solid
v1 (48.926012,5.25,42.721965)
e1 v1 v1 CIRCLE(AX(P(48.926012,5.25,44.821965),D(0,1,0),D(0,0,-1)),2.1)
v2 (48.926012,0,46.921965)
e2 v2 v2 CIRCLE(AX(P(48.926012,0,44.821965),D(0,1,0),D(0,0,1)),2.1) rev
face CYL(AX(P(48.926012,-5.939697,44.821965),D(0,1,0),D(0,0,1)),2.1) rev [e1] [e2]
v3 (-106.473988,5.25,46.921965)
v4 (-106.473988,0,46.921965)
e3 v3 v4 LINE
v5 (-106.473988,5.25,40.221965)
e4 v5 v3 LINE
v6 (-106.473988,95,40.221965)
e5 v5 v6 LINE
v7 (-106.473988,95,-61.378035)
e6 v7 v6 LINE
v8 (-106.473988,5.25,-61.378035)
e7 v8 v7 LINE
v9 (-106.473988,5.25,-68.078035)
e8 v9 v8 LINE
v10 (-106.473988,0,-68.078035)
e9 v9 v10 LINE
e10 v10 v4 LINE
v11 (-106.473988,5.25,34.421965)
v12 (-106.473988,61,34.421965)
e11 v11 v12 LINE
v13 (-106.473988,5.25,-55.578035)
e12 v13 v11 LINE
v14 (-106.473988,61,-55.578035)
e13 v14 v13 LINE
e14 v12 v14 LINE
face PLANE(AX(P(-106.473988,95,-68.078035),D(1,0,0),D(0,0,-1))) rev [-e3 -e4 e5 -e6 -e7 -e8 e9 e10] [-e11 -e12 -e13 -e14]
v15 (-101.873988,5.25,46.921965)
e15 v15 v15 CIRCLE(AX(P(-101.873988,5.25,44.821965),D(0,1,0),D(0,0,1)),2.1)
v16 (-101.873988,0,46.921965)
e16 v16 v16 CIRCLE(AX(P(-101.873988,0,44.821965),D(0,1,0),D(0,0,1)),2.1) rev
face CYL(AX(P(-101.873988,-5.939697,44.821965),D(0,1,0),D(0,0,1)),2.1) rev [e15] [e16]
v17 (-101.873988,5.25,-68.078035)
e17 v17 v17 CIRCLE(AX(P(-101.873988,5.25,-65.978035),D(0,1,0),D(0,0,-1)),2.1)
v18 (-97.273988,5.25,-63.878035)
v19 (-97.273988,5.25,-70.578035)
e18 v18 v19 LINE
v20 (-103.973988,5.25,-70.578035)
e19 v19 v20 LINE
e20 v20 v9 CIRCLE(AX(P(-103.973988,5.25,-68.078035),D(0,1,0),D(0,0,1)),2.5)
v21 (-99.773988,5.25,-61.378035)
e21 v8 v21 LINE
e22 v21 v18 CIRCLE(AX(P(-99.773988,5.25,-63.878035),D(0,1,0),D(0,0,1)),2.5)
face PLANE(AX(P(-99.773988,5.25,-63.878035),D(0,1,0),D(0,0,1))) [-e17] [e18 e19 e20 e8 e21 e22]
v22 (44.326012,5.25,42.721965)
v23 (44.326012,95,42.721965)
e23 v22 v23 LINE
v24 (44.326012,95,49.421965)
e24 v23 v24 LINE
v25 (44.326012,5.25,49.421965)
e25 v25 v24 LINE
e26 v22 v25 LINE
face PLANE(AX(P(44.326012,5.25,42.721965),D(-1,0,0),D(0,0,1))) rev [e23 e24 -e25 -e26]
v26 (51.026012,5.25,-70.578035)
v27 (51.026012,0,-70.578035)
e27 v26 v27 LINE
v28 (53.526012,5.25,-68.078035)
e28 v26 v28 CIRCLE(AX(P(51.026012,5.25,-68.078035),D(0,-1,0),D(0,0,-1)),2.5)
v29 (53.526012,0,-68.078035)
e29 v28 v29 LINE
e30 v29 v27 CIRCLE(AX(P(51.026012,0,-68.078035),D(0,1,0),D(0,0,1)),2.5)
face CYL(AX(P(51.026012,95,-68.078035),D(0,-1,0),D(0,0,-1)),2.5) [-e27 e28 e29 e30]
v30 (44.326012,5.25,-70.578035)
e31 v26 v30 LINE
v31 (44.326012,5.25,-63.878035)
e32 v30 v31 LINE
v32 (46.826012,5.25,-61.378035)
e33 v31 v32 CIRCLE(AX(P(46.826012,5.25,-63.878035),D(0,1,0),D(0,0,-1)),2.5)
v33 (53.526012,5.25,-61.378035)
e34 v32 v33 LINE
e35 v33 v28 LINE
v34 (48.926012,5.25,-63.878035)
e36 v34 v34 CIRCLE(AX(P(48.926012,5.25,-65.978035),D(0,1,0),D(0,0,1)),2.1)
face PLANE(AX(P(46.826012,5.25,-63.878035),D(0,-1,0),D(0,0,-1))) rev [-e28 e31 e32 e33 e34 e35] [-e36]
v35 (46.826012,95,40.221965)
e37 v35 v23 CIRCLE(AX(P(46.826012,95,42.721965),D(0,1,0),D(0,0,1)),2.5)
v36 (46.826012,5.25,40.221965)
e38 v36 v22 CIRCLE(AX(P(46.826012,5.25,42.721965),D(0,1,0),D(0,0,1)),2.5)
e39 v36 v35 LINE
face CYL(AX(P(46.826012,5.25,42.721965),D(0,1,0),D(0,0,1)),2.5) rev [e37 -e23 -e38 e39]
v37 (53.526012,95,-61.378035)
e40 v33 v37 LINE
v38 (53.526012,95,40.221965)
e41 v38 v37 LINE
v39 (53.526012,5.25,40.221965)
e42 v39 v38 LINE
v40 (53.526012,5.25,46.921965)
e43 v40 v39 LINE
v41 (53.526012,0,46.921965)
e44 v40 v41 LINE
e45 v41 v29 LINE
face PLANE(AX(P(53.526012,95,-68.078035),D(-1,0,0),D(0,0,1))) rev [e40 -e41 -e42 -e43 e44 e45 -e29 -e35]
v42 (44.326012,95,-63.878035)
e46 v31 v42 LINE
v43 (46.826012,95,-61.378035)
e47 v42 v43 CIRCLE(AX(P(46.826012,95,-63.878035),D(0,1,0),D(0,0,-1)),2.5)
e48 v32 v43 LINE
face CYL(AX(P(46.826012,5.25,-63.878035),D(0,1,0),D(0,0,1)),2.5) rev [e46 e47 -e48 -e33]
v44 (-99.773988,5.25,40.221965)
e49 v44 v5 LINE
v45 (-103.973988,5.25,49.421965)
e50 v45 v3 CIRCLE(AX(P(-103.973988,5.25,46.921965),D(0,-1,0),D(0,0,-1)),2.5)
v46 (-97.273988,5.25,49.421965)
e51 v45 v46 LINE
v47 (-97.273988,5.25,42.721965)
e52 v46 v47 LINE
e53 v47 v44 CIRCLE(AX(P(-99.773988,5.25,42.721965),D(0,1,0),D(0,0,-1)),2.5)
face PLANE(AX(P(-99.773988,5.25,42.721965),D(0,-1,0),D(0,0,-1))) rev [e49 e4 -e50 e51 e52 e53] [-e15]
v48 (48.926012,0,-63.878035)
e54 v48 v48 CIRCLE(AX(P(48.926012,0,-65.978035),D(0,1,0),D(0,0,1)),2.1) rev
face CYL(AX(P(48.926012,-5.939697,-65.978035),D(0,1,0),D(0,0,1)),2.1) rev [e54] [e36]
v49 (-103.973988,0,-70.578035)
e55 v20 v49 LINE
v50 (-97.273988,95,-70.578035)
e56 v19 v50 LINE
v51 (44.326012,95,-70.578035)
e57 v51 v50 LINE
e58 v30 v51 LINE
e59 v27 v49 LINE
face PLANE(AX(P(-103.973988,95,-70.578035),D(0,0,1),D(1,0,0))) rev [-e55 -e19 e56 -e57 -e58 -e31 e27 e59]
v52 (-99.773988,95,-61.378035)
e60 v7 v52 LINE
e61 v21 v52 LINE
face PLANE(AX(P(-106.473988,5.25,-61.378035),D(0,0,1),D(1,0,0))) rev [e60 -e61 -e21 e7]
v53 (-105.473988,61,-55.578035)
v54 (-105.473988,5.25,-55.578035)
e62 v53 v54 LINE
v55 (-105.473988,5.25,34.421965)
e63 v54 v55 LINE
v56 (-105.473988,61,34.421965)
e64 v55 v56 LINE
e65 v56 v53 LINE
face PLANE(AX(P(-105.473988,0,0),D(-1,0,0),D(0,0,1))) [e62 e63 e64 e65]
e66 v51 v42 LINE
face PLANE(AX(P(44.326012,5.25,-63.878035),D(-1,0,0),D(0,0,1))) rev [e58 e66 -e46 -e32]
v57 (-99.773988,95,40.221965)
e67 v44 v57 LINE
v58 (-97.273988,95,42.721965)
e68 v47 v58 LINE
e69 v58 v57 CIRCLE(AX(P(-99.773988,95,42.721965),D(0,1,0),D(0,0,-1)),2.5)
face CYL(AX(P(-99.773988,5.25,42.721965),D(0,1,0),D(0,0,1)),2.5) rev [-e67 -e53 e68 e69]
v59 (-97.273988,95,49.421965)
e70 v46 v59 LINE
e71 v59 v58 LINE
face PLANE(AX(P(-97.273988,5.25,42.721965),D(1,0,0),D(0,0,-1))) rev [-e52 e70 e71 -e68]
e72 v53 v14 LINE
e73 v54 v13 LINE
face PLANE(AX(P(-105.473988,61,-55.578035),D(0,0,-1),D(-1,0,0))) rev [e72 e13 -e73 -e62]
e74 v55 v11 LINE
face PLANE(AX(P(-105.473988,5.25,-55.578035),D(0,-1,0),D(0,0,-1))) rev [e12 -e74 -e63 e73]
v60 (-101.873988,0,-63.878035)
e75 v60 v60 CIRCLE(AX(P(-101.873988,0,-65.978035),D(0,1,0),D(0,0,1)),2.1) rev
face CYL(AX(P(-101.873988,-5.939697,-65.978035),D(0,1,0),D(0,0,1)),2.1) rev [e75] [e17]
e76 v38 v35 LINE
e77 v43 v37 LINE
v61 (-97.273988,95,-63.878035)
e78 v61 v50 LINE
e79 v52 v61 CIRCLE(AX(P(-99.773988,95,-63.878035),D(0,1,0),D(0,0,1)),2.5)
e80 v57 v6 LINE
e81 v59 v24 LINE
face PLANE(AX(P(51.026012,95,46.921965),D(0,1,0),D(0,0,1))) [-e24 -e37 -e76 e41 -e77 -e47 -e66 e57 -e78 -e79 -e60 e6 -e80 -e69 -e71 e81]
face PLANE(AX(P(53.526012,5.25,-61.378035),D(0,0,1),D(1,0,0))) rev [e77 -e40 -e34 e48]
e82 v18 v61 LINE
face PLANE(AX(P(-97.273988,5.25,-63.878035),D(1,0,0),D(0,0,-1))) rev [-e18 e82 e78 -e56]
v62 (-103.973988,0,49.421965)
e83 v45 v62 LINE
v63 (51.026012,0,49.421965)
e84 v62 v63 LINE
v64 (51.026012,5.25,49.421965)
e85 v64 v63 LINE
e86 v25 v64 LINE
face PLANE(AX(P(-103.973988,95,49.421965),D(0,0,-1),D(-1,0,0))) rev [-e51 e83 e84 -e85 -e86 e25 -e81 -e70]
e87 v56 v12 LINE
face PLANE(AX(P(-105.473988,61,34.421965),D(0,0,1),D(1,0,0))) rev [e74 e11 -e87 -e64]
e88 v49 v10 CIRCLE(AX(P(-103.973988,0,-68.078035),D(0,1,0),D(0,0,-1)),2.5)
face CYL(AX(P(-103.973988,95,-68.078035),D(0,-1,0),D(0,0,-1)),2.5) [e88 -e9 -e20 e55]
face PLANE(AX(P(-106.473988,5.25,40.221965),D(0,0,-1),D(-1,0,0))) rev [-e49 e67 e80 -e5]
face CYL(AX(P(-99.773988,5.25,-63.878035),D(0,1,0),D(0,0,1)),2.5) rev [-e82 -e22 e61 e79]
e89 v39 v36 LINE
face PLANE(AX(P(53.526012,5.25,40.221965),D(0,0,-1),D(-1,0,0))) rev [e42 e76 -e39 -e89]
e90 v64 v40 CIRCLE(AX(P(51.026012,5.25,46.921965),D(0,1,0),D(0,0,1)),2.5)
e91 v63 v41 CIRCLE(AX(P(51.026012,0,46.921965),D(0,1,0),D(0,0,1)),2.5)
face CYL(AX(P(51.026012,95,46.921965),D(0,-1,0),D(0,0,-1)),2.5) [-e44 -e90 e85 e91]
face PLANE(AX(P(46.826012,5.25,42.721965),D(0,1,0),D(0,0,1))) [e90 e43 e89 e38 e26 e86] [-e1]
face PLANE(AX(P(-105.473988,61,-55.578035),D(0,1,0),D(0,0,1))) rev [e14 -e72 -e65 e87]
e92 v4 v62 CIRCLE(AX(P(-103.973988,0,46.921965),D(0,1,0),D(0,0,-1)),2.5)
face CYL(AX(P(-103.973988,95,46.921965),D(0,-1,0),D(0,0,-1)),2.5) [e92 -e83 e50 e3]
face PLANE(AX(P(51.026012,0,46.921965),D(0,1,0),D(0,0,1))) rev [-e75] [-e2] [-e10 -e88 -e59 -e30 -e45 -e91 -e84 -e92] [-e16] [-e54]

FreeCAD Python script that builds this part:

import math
import FreeCAD as App
import Part
import Sketcher
Q = App.Units.Quantity

doc = App.newDocument("Part")
body = doc.addObject("PartDesign::Body", "Body")

# Sketch on XZ plane
sketch1 = body.newObject("Sketcher::SketchObject", "Sketch")
sketch1.AttachmentSupport = (doc.getObject("XZ_Plane"), [""])
sketch1.MapMode = "FlatFace"
sketch1.addGeometry([
    Part.LineSegment(App.Vector(51, -70.6, 0), App.Vector(-104, -70.6, 0)),  # 0
    Part.ArcOfCircle(Part.Circle(App.Vector(-104, -68.1, 0), App.Vector(0, 0, 1), 2.5), math.radians(180), math.radians(270)),  # 1
    Part.LineSegment(App.Vector(-106.5, -68.1, 0), App.Vector(-106.5, 46.9, 0)),  # 2
    Part.ArcOfCircle(Part.Circle(App.Vector(-104, 46.9, 0), App.Vector(0, 0, 1), 2.5), math.radians(90), math.radians(180)),  # 3
    Part.LineSegment(App.Vector(-104, 49.4, 0), App.Vector(51, 49.4, 0)),  # 4
    Part.ArcOfCircle(Part.Circle(App.Vector(51, 46.9, 0), App.Vector(0, 0, 1), 2.5), math.radians(0), math.radians(90)),  # 5
    Part.LineSegment(App.Vector(53.5, 46.9, 0), App.Vector(53.5, -68.1, 0)),  # 6
    Part.ArcOfCircle(Part.Circle(App.Vector(51, -68.1, 0), App.Vector(0, 0, 1), 2.5), math.radians(-90), math.radians(0)),  # 7
], False)
sketch1.addConstraint([
    Sketcher.Constraint("Tangent", 0, 2, 1, 2),
    Sketcher.Constraint("Tangent", 1, 1, 2, 1),
    Sketcher.Constraint("Tangent", 2, 2, 3, 2),
    Sketcher.Constraint("Tangent", 3, 1, 4, 1),
    Sketcher.Constraint("Tangent", 4, 2, 5, 2),
    Sketcher.Constraint("Tangent", 5, 1, 6, 1),
    Sketcher.Constraint("Tangent", 6, 2, 7, 2),
    Sketcher.Constraint("Tangent", 7, 1, 0, 1),
    Sketcher.Constraint("Horizontal", 0),
    Sketcher.Constraint("Vertical", 2),
    Sketcher.Constraint("Horizontal", 4),
    Sketcher.Constraint("Vertical", 6),
    Sketcher.Constraint("Equal", 1, 3),
    Sketcher.Constraint("Equal", 3, 5),
    Sketcher.Constraint("Equal", 5, 7),
    Sketcher.Constraint("Radius", 1, Q("2.5 mm")),
    Sketcher.Constraint("DistanceX", 0, 2, 0, 1, Q("155 mm")),
    Sketcher.Constraint("DistanceY", 2, 1, 2, 2, Q("115 mm")),
    Sketcher.Constraint("DistanceX", 1, 3, -1, 1, Q("103.973988 mm")),
    Sketcher.Constraint("DistanceY", 1, 3, -1, 1, Q("68.078035 mm")),
])
pad1 = body.newObject("PartDesign::Pad", "Pad")
pad1.Profile = sketch1
pad1.Length = 95
pad1.Reversed = True

# Sketch on XZ plane
sketch2 = body.newObject("Sketcher::SketchObject", "Sketch001")
sketch2.AttachmentSupport = (doc.getObject("XZ_Plane"), [""])
sketch2.MapMode = "FlatFace"
sketch2.AttachmentOffset = App.Placement(App.Vector(0, 0, -95), App.Rotation())
sketch2.addGeometry([
    Part.LineSegment(App.Vector(53.5, -61.4, 0), App.Vector(53.5, -70.6, 0)),  # 0
    Part.LineSegment(App.Vector(53.5, -70.6, 0), App.Vector(44.3, -70.6, 0)),  # 1
    Part.LineSegment(App.Vector(44.3, -70.6, 0), App.Vector(44.3, -63.9, 0)),  # 2
    Part.ArcOfCircle(Part.Circle(App.Vector(46.8, -63.9, 0), App.Vector(0, 0, 1), 2.5), math.radians(90), math.radians(180)),  # 3
    Part.LineSegment(App.Vector(46.8, -61.4, 0), App.Vector(53.5, -61.4, 0)),  # 4
    Part.LineSegment(App.Vector(-97.3, -63.9, 0), App.Vector(-97.3, -70.6, 0)),  # 5
    Part.LineSegment(App.Vector(-97.3, -70.6, 0), App.Vector(-106.5, -70.6, 0)),  # 6
    Part.LineSegment(App.Vector(-106.5, -70.6, 0), App.Vector(-106.5, -61.4, 0)),  # 7
    Part.LineSegment(App.Vector(-106.5, -61.4, 0), App.Vector(-99.8, -61.4, 0)),  # 8
    Part.ArcOfCircle(Part.Circle(App.Vector(-99.8, -63.9, 0), App.Vector(0, 0, 1), 2.5), math.radians(0), math.radians(90)),  # 9
    Part.LineSegment(App.Vector(-106.5, 40.2, 0), App.Vector(-106.5, 49.4, 0)),  # 10
    Part.LineSegment(App.Vector(-106.5, 49.4, 0), App.Vector(-97.3, 49.4, 0)),  # 11
    Part.LineSegment(App.Vector(-97.3, 49.4, 0), App.Vector(-97.3, 42.7, 0)),  # 12
    Part.ArcOfCircle(Part.Circle(App.Vector(-99.8, 42.7, 0), App.Vector(0, 0, 1), 2.5), math.radians(-90), math.radians(0)),  # 13
    Part.LineSegment(App.Vector(-99.8, 40.2, 0), App.Vector(-106.5, 40.2, 0)),  # 14
    Part.LineSegment(App.Vector(44.3, 42.7, 0), App.Vector(44.3, 49.4, 0)),  # 15
    Part.LineSegment(App.Vector(44.3, 49.4, 0), App.Vector(53.5, 49.4, 0)),  # 16
    Part.LineSegment(App.Vector(53.5, 49.4, 0), App.Vector(53.5, 40.2, 0)),  # 17
    Part.LineSegment(App.Vector(53.5, 40.2, 0), App.Vector(46.8, 40.2, 0)),  # 18
    Part.ArcOfCircle(Part.Circle(App.Vector(46.8, 42.7, 0), App.Vector(0, 0, 1), 2.5), math.radians(180), math.radians(270)),  # 19
], False)
sketch2.addConstraint([
    Sketcher.Constraint("Coincident", 0, 2, 1, 1),
    Sketcher.Constraint("Coincident", 1, 2, 2, 1),
    Sketcher.Constraint("Tangent", 2, 2, 3, 2),
    Sketcher.Constraint("Tangent", 3, 1, 4, 1),
    Sketcher.Constraint("Coincident", 4, 2, 0, 1),
    Sketcher.Constraint("Coincident", 5, 2, 6, 1),
    Sketcher.Constraint("Coincident", 6, 2, 7, 1),
    Sketcher.Constraint("Coincident", 7, 2, 8, 1),
    Sketcher.Constraint("Tangent", 8, 2, 9, 2),
    Sketcher.Constraint("Tangent", 9, 1, 5, 1),
    Sketcher.Constraint("Coincident", 10, 2, 11, 1),
    Sketcher.Constraint("Coincident", 11, 2, 12, 1),
    Sketcher.Constraint("Tangent", 12, 2, 13, 2),
    Sketcher.Constraint("Tangent", 13, 1, 14, 1),
    Sketcher.Constraint("Coincident", 14, 2, 10, 1),
    Sketcher.Constraint("Coincident", 15, 2, 16, 1),
    Sketcher.Constraint("Coincident", 16, 2, 17, 1),
    Sketcher.Constraint("Coincident", 17, 2, 18, 1),
    Sketcher.Constraint("Tangent", 18, 2, 19, 2),
    Sketcher.Constraint("Tangent", 19, 1, 15, 1),
    Sketcher.Constraint("Vertical", 0),
    Sketcher.Constraint("Horizontal", 1),
    Sketcher.Constraint("Vertical", 2),
    Sketcher.Constraint("Horizontal", 4),
    Sketcher.Constraint("Vertical", 5),
    Sketcher.Constraint("Horizontal", 6),
    Sketcher.Constraint("Vertical", 7),
    Sketcher.Constraint("Horizontal", 8),
    Sketcher.Constraint("Vertical", 10),
    Sketcher.Constraint("Horizontal", 11),
    Sketcher.Constraint("Vertical", 12),
    Sketcher.Constraint("Horizontal", 14),
    Sketcher.Constraint("Vertical", 15),
    Sketcher.Constraint("Horizontal", 16),
    Sketcher.Constraint("Vertical", 17),
    Sketcher.Constraint("Horizontal", 18),
    Sketcher.Constraint("Equal", 3, 9),
    Sketcher.Constraint("Equal", 9, 13),
    Sketcher.Constraint("Equal", 13, 19),
    Sketcher.Constraint("Horizontal", 3, 3, 9, 3),
    Sketcher.Constraint("Horizontal", 13, 3, 19, 3),
    Sketcher.Constraint("Horizontal", 1, 2, 5, 2),
    Sketcher.Constraint("Horizontal", 11, 2, 15, 2),
    Sketcher.Constraint("Vertical", 9, 3, 13, 3),
    Sketcher.Constraint("Vertical", 3, 3, 19, 3),
    Sketcher.Constraint("Vertical", 7, 2, 10, 2),
    Sketcher.Constraint("Vertical", 4, 2, 16, 2),
    Sketcher.Constraint("Equal", 1, 6),
    Sketcher.Constraint("Equal", 16, 0),
    Sketcher.Constraint("Equal", 7, 10),
    Sketcher.Constraint("Radius", 3, Q("2.5 mm")),
    Sketcher.Constraint("DistanceX", 1, 2, 1, 1, Q("9.2 mm")),
    Sketcher.Constraint("DistanceX", 9, 3, 3, 3, Q("146.6 mm")),
    Sketcher.Constraint("DistanceY", 9, 3, 13, 3, Q("106.6 mm")),
    Sketcher.Constraint("DistanceX", -1, 1, 3, 3, Q("46.826012 mm")),
    Sketcher.Constraint("DistanceY", 3, 3, -1, 1, Q("63.878035 mm")),
])
pocket1 = body.newObject("PartDesign::Pocket", "Pocket")
pocket1.Profile = sketch2
pocket1.Length = 89.75
pocket1.Reversed = True

# Sketch on XZ plane
sketch3 = body.newObject("Sketcher::SketchObject", "Sketch002")
sketch3.AttachmentSupport = (doc.getObject("XZ_Plane"), [""])
sketch3.MapMode = "FlatFace"
sketch3.AttachmentOffset = App.Placement(App.Vector(0, 0, -5.25), App.Rotation())
sketch3.addGeometry([
    Part.Circle(App.Vector(48.9, -66, 0), App.Vector(0, 0, 1), 2.1),
    Part.Circle(App.Vector(-101.9, -66, 0), App.Vector(0, 0, 1), 2.1),
    Part.Circle(App.Vector(-101.9, 44.8, 0), App.Vector(0, 0, 1), 2.1),
    Part.Circle(App.Vector(48.9, 44.8, 0), App.Vector(0, 0, 1), 2.1),
], False)
sketch3.addConstraint([
    Sketcher.Constraint("Equal", 0, 1),
    Sketcher.Constraint("Equal", 1, 2),
    Sketcher.Constraint("Equal", 2, 3),
    Sketcher.Constraint("Horizontal", 0, 3, 1, 3),
    Sketcher.Constraint("Horizontal", 2, 3, 3, 3),
    Sketcher.Constraint("Vertical", 1, 3, 2, 3),
    Sketcher.Constraint("Vertical", 0, 3, 3, 3),
    Sketcher.Constraint("Diameter", 0, Q("4.2 mm")),
    Sketcher.Constraint("DistanceX", 1, 3, 0, 3, Q("150.8 mm")),
    Sketcher.Constraint("DistanceY", 1, 3, 2, 3, Q("110.8 mm")),
    Sketcher.Constraint("DistanceX", -1, 1, 0, 3, Q("48.926012 mm")),
    Sketcher.Constraint("DistanceY", 0, 3, -1, 1, Q("65.978035 mm")),
])
pocket2 = body.newObject("PartDesign::Pocket", "Pocket001")
pocket2.Profile = sketch3
pocket2.Length = 5.25
pocket2.Reversed = True

# Sketch on YZ plane
sketch4 = body.newObject("Sketcher::SketchObject", "Sketch003")
sketch4.AttachmentSupport = (doc.getObject("YZ_Plane"), [""])
sketch4.MapMode = "FlatFace"
sketch4.AttachmentOffset = App.Placement(App.Vector(0, 0, -106.473988), App.Rotation())
sketch4.addGeometry([
    Part.LineSegment(App.Vector(61, -56, 0), App.Vector(5, -56, 0)),
    Part.LineSegment(App.Vector(5, -56, 0), App.Vector(5, 34, 0)),
    Part.LineSegment(App.Vector(5, 34, 0), App.Vector(61, 34, 0)),
    Part.LineSegment(App.Vector(61, 34, 0), App.Vector(61, -56, 0)),
], False)
sketch4.addConstraint([
    Sketcher.Constraint("Coincident", 0, 2, 1, 1),
    Sketcher.Constraint("Coincident", 1, 2, 2, 1),
    Sketcher.Constraint("Coincident", 2, 2, 3, 1),
    Sketcher.Constraint("Coincident", 3, 2, 0, 1),
    Sketcher.Constraint("Horizontal", 0),
    Sketcher.Constraint("Vertical", 1),
    Sketcher.Constraint("Horizontal", 2),
    Sketcher.Constraint("Vertical", 3),
    Sketcher.Constraint("DistanceY", 1, 1, 1, 2, Q("90 mm")),
    Sketcher.Constraint("DistanceX", -1, 1, 2, 2, Q("61 mm")),
    Sketcher.Constraint("DistanceX", 0, 2, 0, 1, Q("55.75 mm")),
    Sketcher.Constraint("DistanceY", 0, 2, -1, 1, Q("55.578035 mm")),
])
pocket3 = body.newObject("PartDesign::Pocket", "Pocket002")
pocket3.Profile = sketch4
pocket3.Length = 1
pocket3.Reversed = True

doc.recompute()
